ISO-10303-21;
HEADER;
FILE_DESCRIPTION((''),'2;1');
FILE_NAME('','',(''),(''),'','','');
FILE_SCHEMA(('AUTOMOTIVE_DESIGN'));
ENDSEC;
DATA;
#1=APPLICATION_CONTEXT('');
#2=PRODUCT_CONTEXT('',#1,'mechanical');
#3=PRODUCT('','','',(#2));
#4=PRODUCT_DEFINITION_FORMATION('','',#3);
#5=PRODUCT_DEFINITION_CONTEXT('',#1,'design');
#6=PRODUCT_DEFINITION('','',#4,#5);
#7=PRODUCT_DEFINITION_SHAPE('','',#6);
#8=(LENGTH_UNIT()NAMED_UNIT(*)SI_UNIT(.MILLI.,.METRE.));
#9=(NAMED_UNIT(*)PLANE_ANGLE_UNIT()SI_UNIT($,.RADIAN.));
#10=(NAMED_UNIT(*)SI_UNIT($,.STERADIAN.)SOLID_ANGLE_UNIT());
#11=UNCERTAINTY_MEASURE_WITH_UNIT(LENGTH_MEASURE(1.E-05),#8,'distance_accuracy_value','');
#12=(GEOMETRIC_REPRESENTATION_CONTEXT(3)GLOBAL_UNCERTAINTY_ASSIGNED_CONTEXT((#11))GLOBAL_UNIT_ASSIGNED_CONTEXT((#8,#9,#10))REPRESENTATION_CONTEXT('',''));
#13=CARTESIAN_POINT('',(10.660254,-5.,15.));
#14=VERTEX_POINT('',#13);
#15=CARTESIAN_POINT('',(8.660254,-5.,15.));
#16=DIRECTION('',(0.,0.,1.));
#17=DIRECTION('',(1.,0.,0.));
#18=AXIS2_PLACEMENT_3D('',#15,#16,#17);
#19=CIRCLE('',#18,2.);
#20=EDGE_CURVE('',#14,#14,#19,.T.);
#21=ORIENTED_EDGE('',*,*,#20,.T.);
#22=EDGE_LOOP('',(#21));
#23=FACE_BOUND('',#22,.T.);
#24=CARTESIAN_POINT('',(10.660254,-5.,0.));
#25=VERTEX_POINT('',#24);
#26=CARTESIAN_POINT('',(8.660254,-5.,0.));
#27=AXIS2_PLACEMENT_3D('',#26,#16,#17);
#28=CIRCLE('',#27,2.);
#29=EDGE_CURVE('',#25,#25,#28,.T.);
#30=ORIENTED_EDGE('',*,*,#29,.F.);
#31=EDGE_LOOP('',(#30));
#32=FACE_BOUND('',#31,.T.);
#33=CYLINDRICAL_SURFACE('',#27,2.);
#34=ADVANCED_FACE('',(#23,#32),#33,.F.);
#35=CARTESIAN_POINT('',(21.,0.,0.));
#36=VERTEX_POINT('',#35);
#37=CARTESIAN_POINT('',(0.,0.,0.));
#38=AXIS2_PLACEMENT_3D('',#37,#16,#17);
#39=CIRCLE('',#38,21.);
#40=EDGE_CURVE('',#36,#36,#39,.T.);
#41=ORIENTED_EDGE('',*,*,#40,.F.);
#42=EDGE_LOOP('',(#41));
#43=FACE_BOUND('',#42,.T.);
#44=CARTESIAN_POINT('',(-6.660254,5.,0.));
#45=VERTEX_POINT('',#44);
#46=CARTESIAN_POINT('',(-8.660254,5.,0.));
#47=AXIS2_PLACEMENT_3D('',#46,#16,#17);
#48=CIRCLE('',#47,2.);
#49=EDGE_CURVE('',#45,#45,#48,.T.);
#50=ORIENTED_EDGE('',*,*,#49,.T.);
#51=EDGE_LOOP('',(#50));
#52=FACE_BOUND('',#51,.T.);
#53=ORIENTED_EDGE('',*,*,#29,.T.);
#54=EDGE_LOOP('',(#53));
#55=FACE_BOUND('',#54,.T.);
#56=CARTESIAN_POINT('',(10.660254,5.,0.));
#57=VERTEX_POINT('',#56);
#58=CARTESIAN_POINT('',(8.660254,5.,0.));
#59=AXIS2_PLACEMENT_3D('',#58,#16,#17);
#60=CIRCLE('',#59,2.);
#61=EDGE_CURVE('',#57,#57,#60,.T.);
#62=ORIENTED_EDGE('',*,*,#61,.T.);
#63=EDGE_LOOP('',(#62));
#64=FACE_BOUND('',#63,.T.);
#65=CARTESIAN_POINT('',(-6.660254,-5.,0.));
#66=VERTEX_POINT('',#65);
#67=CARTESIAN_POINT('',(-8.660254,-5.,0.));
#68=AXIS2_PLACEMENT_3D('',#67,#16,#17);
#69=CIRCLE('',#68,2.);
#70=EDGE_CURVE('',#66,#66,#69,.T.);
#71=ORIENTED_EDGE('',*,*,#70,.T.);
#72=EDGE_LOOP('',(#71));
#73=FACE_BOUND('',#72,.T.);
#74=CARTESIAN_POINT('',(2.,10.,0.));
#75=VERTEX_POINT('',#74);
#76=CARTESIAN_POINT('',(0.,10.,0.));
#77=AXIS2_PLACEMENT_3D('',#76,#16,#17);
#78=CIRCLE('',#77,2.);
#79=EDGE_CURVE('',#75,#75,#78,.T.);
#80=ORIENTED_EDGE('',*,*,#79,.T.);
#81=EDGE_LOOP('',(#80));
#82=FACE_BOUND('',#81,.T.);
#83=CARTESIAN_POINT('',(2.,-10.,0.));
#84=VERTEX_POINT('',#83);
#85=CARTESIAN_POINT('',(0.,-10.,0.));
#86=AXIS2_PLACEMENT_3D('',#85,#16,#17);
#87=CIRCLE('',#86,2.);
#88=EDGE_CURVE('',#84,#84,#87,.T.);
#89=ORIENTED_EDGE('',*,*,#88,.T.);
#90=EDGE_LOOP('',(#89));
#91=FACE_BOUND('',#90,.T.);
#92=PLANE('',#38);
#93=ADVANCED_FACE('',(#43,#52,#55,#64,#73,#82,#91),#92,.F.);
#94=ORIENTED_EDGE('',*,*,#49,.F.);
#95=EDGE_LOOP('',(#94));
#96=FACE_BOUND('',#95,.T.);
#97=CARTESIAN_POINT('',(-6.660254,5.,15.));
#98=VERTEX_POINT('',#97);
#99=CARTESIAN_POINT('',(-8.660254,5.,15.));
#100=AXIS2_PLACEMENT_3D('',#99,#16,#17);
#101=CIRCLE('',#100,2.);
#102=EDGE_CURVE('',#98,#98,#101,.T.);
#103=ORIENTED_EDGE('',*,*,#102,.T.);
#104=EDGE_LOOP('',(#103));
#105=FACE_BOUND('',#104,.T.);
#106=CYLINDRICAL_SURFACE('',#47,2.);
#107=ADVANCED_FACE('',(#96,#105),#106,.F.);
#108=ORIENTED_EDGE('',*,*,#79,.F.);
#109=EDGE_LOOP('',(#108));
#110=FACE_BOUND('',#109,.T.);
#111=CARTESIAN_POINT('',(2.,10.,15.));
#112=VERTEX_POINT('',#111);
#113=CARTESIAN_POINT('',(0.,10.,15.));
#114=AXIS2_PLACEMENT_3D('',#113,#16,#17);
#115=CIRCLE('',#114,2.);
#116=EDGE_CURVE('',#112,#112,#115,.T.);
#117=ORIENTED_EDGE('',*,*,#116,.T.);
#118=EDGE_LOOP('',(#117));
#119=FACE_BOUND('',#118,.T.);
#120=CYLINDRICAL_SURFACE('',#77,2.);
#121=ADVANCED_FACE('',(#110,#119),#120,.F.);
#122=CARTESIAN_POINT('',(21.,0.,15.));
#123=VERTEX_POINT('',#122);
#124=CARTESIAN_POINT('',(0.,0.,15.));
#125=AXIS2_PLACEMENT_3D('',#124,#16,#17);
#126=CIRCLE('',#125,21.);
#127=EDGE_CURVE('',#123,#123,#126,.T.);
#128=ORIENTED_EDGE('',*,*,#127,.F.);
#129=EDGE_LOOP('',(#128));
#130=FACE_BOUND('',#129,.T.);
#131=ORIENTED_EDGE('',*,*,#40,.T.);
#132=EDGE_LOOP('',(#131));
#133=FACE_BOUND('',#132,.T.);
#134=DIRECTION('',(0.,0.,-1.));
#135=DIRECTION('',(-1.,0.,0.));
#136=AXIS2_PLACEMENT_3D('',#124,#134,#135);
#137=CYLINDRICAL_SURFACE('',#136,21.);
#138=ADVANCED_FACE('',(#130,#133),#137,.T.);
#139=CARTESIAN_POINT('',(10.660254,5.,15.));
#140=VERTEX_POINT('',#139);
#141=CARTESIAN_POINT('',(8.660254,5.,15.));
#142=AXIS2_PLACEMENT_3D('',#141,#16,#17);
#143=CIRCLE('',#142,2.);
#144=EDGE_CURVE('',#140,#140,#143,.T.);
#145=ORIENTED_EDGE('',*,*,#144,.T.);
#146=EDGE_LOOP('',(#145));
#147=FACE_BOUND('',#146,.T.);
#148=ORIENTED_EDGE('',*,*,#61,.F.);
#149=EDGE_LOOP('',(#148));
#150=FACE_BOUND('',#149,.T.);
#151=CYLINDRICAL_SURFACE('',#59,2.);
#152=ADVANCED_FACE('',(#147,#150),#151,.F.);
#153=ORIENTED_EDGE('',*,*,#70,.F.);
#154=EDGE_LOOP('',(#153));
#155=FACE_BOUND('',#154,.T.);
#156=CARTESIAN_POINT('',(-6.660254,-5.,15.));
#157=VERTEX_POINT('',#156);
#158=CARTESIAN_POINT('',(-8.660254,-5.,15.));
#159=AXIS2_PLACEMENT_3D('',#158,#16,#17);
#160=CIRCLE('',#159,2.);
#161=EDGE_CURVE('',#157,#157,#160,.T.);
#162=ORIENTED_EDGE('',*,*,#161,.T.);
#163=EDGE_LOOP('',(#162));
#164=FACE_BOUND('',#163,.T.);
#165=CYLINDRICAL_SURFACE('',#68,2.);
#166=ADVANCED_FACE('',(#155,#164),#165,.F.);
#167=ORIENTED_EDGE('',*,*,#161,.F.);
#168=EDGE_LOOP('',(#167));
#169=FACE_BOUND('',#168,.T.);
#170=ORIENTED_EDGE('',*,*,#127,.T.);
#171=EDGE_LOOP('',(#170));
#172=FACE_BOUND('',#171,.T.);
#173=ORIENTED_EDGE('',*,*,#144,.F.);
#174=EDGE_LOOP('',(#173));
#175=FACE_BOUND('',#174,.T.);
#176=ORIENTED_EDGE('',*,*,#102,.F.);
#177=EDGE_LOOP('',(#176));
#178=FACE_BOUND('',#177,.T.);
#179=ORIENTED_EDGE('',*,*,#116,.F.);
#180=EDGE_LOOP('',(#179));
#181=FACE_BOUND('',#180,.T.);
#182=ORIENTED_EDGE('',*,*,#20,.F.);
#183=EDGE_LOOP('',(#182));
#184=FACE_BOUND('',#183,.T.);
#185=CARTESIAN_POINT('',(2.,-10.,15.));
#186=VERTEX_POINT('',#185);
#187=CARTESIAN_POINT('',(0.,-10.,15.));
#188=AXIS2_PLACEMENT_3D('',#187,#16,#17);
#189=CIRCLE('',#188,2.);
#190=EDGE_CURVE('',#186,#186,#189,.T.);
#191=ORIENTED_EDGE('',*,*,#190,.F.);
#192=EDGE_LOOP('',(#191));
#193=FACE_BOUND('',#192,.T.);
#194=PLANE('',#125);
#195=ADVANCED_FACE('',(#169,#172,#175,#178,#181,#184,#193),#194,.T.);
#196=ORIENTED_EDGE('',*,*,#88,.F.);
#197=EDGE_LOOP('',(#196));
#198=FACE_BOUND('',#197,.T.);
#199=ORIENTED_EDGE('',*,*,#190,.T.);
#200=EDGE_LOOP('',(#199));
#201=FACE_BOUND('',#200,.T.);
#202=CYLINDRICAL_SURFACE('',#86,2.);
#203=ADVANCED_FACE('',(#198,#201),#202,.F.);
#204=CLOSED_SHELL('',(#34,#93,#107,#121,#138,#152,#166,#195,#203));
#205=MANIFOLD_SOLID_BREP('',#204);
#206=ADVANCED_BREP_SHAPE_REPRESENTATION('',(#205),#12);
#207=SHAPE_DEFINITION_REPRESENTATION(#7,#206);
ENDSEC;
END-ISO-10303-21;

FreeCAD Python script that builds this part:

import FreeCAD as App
import Part
import Sketcher
from FreeCAD import Vector

doc = App.newDocument("Part")
body = doc.addObject("PartDesign::Body", "Body")

sketch1 = body.newObject("Sketcher::SketchObject", "Sketch")
sketch1.AttachmentSupport = (doc.getObject("XY_Plane"), [""])
sketch1.MapMode = "FlatFace"
sketch1.addGeometry(Part.Circle(Vector(0, 0, 0), Vector(0, 0, 1), 21), False)
sketch1.addConstraint(Sketcher.Constraint("Coincident", 0, 3, -1, 1))
sketch1.addConstraint(Sketcher.Constraint("Diameter", 0, 42.0))
pad1 = body.newObject("PartDesign::Pad", "Pad")
pad1.Profile = sketch1
pad1.Length = 15

sketch2 = body.newObject("Sketcher::SketchObject", "Sketch001")
sketch2.AttachmentSupport = (doc.getObject("XY_Plane"), [""])
sketch2.MapMode = "FlatFace"
sketch2.AttachmentOffset = App.Placement(Vector(0, 0, 15), App.Rotation())
sketch2.addGeometry(Part.Circle(Vector(0, 10, 0), Vector(0, 0, 1), 2), False)
sketch2.addGeometry(Part.Circle(Vector(8.660254, 5, 0), Vector(0, 0, 1), 2), False)
sketch2.addGeometry(Part.Circle(Vector(8.660254, -5, 0), Vector(0, 0, 1), 2), False)
sketch2.addGeometry(Part.Circle(Vector(0, -10, 0), Vector(0, 0, 1), 2), False)
sketch2.addGeometry(Part.Circle(Vector(-8.660254, -5, 0), Vector(0, 0, 1), 2), False)
sketch2.addGeometry(Part.Circle(Vector(-8.660254, 5, 0), Vector(0, 0, 1), 2), False)
sketch2.addConstraint(Sketcher.Constraint("Equal", 0, 1))
sketch2.addConstraint(Sketcher.Constraint("Equal", 1, 2))
sketch2.addConstraint(Sketcher.Constraint("Equal", 2, 3))
sketch2.addConstraint(Sketcher.Constraint("Equal", 3, 4))
sketch2.addConstraint(Sketcher.Constraint("Equal", 4, 5))
sketch2.addConstraint(Sketcher.Constraint("Symmetric", 0, 3, 3, 3, -1, 1))
sketch2.addConstraint(Sketcher.Constraint("Symmetric", 1, 3, 4, 3, -1, 1))
sketch2.addConstraint(Sketcher.Constraint("Symmetric", 2, 3, 5, 3, -1, 1))
sketch2.addConstraint(Sketcher.Constraint("Symmetric", 2, 3, 4, 3, -2))
sketch2.addConstraint(Sketcher.Constraint("PointOnObject", 0, 3, -2))
sketch2.addConstraint(Sketcher.Constraint("Diameter", 0, 4.0))
sketch2.addConstraint(Sketcher.Constraint("DistanceY", -1, 1, 0, 3, 10.0))
sketch2.addConstraint(Sketcher.Constraint("DistanceY", -1, 1, 1, 3, 5.0))
sketch2.addConstraint(Sketcher.Constraint("DistanceX", 4, 3, 2, 3, 17.320508))
pocket1 = body.newObject("PartDesign::Pocket", "Pocket")
pocket1.Profile = sketch2
pocket1.Type = "ThroughAll"

doc.recompute()
